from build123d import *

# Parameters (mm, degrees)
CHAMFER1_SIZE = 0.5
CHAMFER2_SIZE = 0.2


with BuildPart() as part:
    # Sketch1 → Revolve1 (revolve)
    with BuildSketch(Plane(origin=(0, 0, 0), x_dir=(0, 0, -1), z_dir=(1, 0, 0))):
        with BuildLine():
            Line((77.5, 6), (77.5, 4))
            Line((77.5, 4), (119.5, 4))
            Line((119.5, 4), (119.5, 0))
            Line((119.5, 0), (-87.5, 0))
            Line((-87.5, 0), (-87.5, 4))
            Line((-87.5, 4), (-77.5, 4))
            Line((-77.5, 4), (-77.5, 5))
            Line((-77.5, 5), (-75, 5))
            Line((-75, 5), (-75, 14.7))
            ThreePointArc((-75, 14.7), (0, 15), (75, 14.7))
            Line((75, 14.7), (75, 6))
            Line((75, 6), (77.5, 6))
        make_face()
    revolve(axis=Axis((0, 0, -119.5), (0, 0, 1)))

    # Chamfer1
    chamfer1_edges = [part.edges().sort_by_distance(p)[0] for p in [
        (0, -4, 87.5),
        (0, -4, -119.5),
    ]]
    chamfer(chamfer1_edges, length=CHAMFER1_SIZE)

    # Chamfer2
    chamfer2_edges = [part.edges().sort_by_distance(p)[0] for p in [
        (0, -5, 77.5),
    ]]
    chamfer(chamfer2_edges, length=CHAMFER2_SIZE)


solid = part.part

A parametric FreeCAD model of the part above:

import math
import FreeCAD as App
import Part
import Sketcher


def edges_at(feature, points):
    """Names of the edges that pass closest to the given points."""
    edges = feature.Shape.Edges
    near = lambda p: min(range(len(edges)), key=lambda i: edges[i].distToShape(Part.Vertex(*p))[0])
    return sorted({f"Edge{near(p) + 1}" for p in points})

doc = App.newDocument("Part")
body = doc.addObject("PartDesign::Body", "Body")

# Sketch on YZ plane
sketch1 = body.newObject("Sketcher::SketchObject", "Sketch")
sketch1.AttachmentSupport = (doc.getObject("YZ_Plane"), [""])
sketch1.MapMode = "FlatFace"
sketch1.addGeometry([
    Part.LineSegment(App.Vector(4, -77.5, 0), App.Vector(6, -77.5, 0)),  # 0
    Part.LineSegment(App.Vector(6, -77.5, 0), App.Vector(6, -75, 0)),  # 1
    Part.LineSegment(App.Vector(6, -75, 0), App.Vector(14.7, -75, 0)),  # 2
    Part.ArcOfCircle(Part.Circle(App.Vector(-9360.2, 0, 0), App.Vector(0, 0, 1), 9375.2), math.radians(-0.46), math.radians(0.46)),  # 3
    Part.LineSegment(App.Vector(14.7, 75, 0), App.Vector(5, 75, 0)),  # 4
    Part.LineSegment(App.Vector(5, 75, 0), App.Vector(5, 77.5, 0)),  # 5
    Part.LineSegment(App.Vector(5, 77.5, 0), App.Vector(4, 77.5, 0)),  # 6
    Part.LineSegment(App.Vector(4, 77.5, 0), App.Vector(4, 87.5, 0)),  # 7
    Part.LineSegment(App.Vector(4, 87.5, 0), App.Vector(0, 87.5, 0)),  # 8
    Part.LineSegment(App.Vector(0, 87.5, 0), App.Vector(0, -119.5, 0)),  # 9
    Part.LineSegment(App.Vector(0, -119.5, 0), App.Vector(4, -119.5, 0)),  # 10
    Part.LineSegment(App.Vector(4, -119.5, 0), App.Vector(4, -77.5, 0)),  # 11
], False)
sketch1.addConstraint([
    Sketcher.Constraint("Coincident", 0, 2, 1, 1),
    Sketcher.Constraint("Coincident", 1, 2, 2, 1),
    Sketcher.Constraint("Coincident", 2, 2, 3, 1),
    Sketcher.Constraint("Coincident", 3, 2, 4, 1),
    Sketcher.Constraint("Coincident", 4, 2, 5, 1),
    Sketcher.Constraint("Coincident", 5, 2, 6, 1),
    Sketcher.Constraint("Coincident", 6, 2, 7, 1),
    Sketcher.Constraint("Coincident", 7, 2, 8, 1),
    Sketcher.Constraint("Coincident", 8, 2, 9, 1),
    Sketcher.Constraint("Coincident", 9, 2, 10, 1),
    Sketcher.Constraint("Coincident", 10, 2, 11, 1),
    Sketcher.Constraint("Coincident", 11, 2, 0, 1),
    Sketcher.Constraint("Horizontal", 0),
    Sketcher.Constraint("Vertical", 1),
    Sketcher.Constraint("Horizontal", 2),
    Sketcher.Constraint("Horizontal", 4),
    Sketcher.Constraint("Vertical", 5),
    Sketcher.Constraint("Horizontal", 6),
    Sketcher.Constraint("Vertical", 7),
    Sketcher.Constraint("Horizontal", 8),
    Sketcher.Constraint("Vertical", 9),
    Sketcher.Constraint("Horizontal", 10),
    Sketcher.Constraint("Vertical", 11),
    Sketcher.Constraint("Symmetric", 6, 2, 11, 2, -1),
    Sketcher.Constraint("PointOnObject", 3, 3, -1),
    Sketcher.Constraint("PointOnObject", 8, 2, -2),
    Sketcher.Constraint("Equal", 1, 5),
    Sketcher.Constraint("DistanceX", 0, 1, 0, 2, 2.0),
    Sketcher.Constraint("DistanceX", 6, 2, 6, 1, 1.0),
    Sketcher.Constraint("DistanceX", 8, 2, 8, 1, 4.0),
    Sketcher.Constraint("DistanceY", 7, 1, 7, 2, 10.0),
    Sketcher.Constraint("DistanceY", 9, 2, 9, 1, 207.0),
    Sketcher.Constraint("DistanceY", 11, 1, 11, 2, 42.0),
    Sketcher.Constraint("Radius", 3, 9375.15),
    Sketcher.Constraint("DistanceX", 2, 1, 2, 2, 8.7),
    Sketcher.Constraint("DistanceY", 1, 1, 1, 2, 2.5),
])
revolution = body.newObject("PartDesign::Revolution", "Revolution")
revolution.Profile = sketch1
revolution.ReferenceAxis = (sketch1, ["V_Axis"])
revolution.Angle = 360
doc.recompute()

chamfer = body.newObject("PartDesign::Chamfer", "Chamfer")
chamfer.Base = (revolution, edges_at(revolution, [(0, -4, 87.5), (0, -4, -119.5)]))
chamfer.Size = 0.5
doc.recompute()

chamfer2 = body.newObject("PartDesign::Chamfer", "Chamfer001")
chamfer2.Base = (chamfer, edges_at(chamfer, [(0, -5, 77.5)]))
chamfer2.Size = 0.2

doc.recompute()
